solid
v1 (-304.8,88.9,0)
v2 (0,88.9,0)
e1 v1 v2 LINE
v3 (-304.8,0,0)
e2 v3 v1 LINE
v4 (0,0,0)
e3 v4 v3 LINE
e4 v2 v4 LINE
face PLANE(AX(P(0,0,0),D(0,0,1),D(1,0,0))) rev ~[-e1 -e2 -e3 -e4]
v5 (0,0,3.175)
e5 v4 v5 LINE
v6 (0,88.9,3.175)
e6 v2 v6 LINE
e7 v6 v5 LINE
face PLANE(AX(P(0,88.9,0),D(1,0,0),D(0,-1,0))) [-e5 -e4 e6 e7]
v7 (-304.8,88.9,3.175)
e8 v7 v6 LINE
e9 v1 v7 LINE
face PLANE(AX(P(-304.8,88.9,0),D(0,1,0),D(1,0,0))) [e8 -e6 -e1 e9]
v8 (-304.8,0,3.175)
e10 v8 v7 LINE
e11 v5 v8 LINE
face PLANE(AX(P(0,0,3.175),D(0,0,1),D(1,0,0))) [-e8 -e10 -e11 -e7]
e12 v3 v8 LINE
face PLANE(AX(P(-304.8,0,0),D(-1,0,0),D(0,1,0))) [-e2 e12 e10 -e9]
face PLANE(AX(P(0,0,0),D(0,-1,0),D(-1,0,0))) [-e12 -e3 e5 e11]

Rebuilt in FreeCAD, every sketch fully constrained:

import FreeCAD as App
import Part
import Sketcher
from FreeCAD import Vector
Q = App.Units.Quantity


def add_polygon(sketch, points):
    """Adds a closed chain of lines whose ends are joined by coincident constraints."""
    first, n = sketch.GeometryCount, len(points)
    for a, b in zip(points, points[1:] + points[:1]):
        sketch.addGeometry(Part.LineSegment(App.Vector(*a, 0), App.Vector(*b, 0)), False)
    for i in range(n):
        sketch.addConstraint(Sketcher.Constraint("Coincident", first + i, 2, first + (i + 1) % n, 1))

doc = App.newDocument("Part")
body = doc.addObject("PartDesign::Body", "Body")

# Sketch on XY plane
sketch1 = body.newObject("Sketcher::SketchObject", "Sketch")
sketch1.AttachmentSupport = (doc.getObject("XY_Plane"), [""])
sketch1.MapMode = "FlatFace"
add_polygon(sketch1, [(-305, 0), (0, 0), (0, 89), (-305, 89)])  # lines 0-3
sketch1.addConstraint(Sketcher.Constraint("Horizontal", 0))
sketch1.addConstraint(Sketcher.Constraint("Vertical", 1))
sketch1.addConstraint(Sketcher.Constraint("Horizontal", 2))
sketch1.addConstraint(Sketcher.Constraint("Vertical", 3))
sketch1.addConstraint(Sketcher.Constraint("Coincident", 0, 2, -1, 1))
sketch1.addConstraint(Sketcher.Constraint("DistanceX", 0, 1, 0, 2, Q("12 in")))
sketch1.addConstraint(Sketcher.Constraint("DistanceY", 1, 1, 1, 2, Q("3.5 in")))
pad1 = body.newObject("PartDesign::Pad", "Pad")
pad1.Profile = sketch1
pad1.Length = Q("0.125 in")

doc.recompute()
